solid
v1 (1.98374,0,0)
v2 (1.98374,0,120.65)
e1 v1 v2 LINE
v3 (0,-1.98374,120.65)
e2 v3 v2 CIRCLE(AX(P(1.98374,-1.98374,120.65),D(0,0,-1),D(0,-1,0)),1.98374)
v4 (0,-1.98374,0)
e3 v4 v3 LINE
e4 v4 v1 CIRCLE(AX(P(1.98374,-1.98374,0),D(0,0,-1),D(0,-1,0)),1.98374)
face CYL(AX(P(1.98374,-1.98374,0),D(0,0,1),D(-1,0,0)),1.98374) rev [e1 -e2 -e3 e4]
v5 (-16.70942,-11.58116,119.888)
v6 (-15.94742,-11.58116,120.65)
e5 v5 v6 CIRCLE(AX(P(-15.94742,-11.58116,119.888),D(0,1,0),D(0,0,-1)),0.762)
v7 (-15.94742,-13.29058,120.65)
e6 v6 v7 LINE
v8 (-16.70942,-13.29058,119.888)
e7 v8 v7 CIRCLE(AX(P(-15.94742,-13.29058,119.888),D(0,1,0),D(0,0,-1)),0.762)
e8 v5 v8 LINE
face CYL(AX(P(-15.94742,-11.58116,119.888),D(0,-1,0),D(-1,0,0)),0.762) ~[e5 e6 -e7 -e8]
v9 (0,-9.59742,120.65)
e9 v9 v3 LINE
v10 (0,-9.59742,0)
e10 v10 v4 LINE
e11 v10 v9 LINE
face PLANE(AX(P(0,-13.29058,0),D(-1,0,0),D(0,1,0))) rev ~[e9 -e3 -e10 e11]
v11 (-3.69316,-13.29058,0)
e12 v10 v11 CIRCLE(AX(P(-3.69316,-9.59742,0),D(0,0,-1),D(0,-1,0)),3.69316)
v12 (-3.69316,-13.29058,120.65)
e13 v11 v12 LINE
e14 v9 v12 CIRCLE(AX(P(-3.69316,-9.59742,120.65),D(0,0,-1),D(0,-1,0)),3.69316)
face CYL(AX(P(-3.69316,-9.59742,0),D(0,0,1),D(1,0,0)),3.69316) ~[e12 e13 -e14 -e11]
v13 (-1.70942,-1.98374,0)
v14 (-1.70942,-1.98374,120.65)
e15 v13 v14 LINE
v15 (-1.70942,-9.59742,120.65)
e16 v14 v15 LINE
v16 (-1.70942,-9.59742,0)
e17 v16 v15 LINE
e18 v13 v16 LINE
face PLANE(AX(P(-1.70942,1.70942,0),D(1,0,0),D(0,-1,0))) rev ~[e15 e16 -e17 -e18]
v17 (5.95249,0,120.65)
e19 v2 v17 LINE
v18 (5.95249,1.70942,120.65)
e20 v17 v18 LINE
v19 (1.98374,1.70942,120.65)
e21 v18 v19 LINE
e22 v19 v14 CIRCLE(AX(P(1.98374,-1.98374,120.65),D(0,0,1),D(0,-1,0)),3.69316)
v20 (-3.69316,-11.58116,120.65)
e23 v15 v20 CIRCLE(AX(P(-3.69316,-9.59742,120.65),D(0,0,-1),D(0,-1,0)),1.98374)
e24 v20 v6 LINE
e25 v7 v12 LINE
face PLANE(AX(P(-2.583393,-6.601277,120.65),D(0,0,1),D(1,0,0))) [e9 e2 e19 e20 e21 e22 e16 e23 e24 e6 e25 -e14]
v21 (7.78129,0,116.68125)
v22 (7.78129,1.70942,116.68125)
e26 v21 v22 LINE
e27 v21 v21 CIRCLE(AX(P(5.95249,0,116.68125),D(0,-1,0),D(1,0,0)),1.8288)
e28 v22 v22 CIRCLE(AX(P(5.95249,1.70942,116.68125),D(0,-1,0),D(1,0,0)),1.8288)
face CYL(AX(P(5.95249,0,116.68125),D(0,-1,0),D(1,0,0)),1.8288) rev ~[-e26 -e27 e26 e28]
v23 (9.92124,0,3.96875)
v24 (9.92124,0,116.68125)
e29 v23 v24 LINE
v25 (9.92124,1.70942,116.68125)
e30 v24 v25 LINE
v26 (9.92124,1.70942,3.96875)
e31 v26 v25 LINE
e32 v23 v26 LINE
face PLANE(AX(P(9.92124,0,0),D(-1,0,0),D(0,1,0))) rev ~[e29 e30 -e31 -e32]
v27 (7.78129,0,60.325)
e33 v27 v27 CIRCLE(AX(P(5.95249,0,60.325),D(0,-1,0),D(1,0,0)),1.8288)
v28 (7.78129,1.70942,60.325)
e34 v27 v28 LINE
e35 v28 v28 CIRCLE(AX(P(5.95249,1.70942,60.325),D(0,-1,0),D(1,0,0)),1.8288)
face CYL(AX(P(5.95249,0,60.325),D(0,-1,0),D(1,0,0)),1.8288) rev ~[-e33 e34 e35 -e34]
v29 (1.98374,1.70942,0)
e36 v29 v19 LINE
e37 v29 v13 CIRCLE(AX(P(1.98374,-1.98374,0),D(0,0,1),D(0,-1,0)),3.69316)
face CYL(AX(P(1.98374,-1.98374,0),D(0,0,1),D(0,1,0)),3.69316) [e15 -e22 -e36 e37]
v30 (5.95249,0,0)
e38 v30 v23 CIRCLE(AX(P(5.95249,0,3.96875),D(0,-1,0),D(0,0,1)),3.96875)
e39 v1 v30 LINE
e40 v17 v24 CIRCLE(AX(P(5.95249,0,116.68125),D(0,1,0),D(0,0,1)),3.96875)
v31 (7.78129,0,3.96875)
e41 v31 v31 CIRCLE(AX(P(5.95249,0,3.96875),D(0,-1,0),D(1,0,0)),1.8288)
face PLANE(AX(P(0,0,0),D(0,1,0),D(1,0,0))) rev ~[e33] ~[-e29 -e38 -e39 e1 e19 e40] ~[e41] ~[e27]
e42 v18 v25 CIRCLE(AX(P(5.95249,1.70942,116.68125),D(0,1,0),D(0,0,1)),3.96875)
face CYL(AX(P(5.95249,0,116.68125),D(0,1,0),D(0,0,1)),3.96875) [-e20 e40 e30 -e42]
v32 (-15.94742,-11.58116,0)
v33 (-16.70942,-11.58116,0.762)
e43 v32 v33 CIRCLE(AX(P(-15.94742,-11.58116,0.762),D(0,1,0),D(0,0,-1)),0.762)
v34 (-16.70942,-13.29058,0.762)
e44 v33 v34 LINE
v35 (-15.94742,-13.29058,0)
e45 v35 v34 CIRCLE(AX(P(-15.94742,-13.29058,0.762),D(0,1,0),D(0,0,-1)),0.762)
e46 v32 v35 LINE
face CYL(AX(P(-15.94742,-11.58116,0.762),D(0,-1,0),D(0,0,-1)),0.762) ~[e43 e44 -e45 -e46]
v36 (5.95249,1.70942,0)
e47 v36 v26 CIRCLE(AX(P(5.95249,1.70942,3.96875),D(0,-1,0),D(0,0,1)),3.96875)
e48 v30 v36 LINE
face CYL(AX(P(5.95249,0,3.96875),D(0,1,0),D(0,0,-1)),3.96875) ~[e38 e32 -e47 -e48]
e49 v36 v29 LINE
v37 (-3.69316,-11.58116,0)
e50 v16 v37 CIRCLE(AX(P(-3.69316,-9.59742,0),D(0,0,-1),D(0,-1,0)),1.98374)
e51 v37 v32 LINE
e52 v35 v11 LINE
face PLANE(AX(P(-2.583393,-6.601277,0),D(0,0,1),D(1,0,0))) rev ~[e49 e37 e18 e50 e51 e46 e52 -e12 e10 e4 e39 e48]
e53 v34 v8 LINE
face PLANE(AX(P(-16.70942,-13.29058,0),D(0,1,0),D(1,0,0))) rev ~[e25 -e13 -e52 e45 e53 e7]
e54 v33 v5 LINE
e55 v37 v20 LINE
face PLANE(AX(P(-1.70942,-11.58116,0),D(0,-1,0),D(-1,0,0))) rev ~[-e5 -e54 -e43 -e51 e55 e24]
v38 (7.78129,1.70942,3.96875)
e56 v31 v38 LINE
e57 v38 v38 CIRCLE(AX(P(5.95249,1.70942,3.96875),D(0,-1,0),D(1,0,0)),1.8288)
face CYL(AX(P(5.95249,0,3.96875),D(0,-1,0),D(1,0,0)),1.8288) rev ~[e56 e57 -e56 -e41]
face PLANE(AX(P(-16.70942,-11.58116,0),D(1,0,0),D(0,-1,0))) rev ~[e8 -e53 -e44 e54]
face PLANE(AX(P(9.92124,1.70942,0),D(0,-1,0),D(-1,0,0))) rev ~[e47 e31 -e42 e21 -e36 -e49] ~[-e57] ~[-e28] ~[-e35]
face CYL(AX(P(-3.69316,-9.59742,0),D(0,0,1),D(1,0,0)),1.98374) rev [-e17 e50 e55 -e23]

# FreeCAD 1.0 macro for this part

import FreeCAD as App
import Part
import Sketcher
from FreeCAD import Vector
Q = App.Units.Quantity


def edges_at(feature, points):
    """Names of the edges that pass closest to the given points."""
    edges = feature.Shape.Edges
    near = lambda p: min(range(len(edges)), key=lambda i: edges[i].distToShape(Part.Vertex(*p))[0])
    return sorted({f"Edge{near(p) + 1}" for p in points})


def add_polygon(sketch, points):
    """Adds a closed chain of lines whose ends are joined by coincident constraints."""
    first, n = sketch.GeometryCount, len(points)
    for a, b in zip(points, points[1:] + points[:1]):
        sketch.addGeometry(Part.LineSegment(App.Vector(*a, 0), App.Vector(*b, 0)), False)
    for i in range(n):
        sketch.addConstraint(Sketcher.Constraint("Coincident", first + i, 2, first + (i + 1) % n, 1))

doc = App.newDocument("Part")
body = doc.addObject("PartDesign::Body", "Body")

sketch1 = body.newObject("Sketcher::SketchObject", "Sketch")
sketch1.AttachmentSupport = (doc.getObject("XY_Plane"), [""])
sketch1.MapMode = "FlatFace"
add_polygon(sketch1, [(0, -13.29058), (0, 0), (9.92124, 0), (9.92124, 1.70942), (-1.70942, 1.70942), (-1.70942, -11.58116), (-16.70942, -11.58116), (-16.70942, -13.29058)])
sketch1.addConstraint([
    Sketcher.Constraint("Vertical", 0),
    Sketcher.Constraint("Horizontal", 1),
    Sketcher.Constraint("Vertical", 2),
    Sketcher.Constraint("Horizontal", 3),
    Sketcher.Constraint("Vertical", 4),
    Sketcher.Constraint("Horizontal", 5),
    Sketcher.Constraint("Vertical", 6),
    Sketcher.Constraint("Horizontal", 7),
    Sketcher.Constraint("Coincident", 0, 2, -1, 1),
    Sketcher.Constraint("Equal", 0, 4),
    Sketcher.Constraint("DistanceX", 1, 1, 1, 2, Q("0.3906 in")),
    Sketcher.Constraint("DistanceX", 3, 2, 3, 1, Q("0.4579 in")),
    Sketcher.Constraint("DistanceY", 2, 1, 2, 2, Q("0.0673 in")),
    Sketcher.Constraint("DistanceX", 5, 2, 5, 1, 15.0),
    Sketcher.Constraint("DistanceY", 0, 1, 0, 2, 13.29058),
])
pad1 = body.newObject("PartDesign::Pad", "Pad")
pad1.Profile = sketch1
pad1.Length = Q("4.75 in")
doc.recompute()

fillet = body.newObject("PartDesign::Fillet", "Fillet")
fillet.Base = (pad1, edges_at(pad1, [(0, 0, 60.325), (-1.709, -11.581, 60.325)]))
fillet.Radius = Q("0.0781 in")
doc.recompute()

fillet2 = body.newObject("PartDesign::Fillet", "Fillet001")
fillet2.Base = (fillet, edges_at(fillet, [(0, -13.291, 60.325), (-1.709, 1.709, 60.325)]))
fillet2.Radius = Q("0.1454 in")
doc.recompute()

fillet3 = body.newObject("PartDesign::Fillet", "Fillet002")
fillet3.Base = (fillet2, edges_at(fillet2, [(9.921, 0.855, 120.65), (9.921, 0.855, 0)]))
fillet3.Radius = Q("0.15625 in")
doc.recompute()

fillet4 = body.newObject("PartDesign::Fillet", "Fillet003")
fillet4.Base = (fillet3, edges_at(fillet3, [(-16.709, -12.436, 0), (-16.709, -12.436, 120.65)]))
fillet4.Radius = Q("0.03 in")

sketch2 = body.newObject("Sketcher::SketchObject", "Sketch001")
sketch2.AttachmentSupport = (doc.getObject("XZ_Plane"), [""])
sketch2.MapMode = "FlatFace"
sketch2.addGeometry([
    Part.Circle(Vector(5.95249, 116.68125, 0), Vector(0, 0, 1), 1.8288),
    Part.Circle(Vector(5.95249, 3.96875, 0), Vector(0, 0, 1), 1.8288),
    Part.Circle(Vector(5.95249, 60.325, 0), Vector(0, 0, 1), 1.8288),
], False)
sketch2.addConstraint([
    Sketcher.Constraint("Equal", 0, 1),
    Sketcher.Constraint("Equal", 1, 2),
    Sketcher.Constraint("Vertical", 0, 3, 1, 3),
    Sketcher.Constraint("Vertical", 1, 3, 2, 3),
    Sketcher.Constraint("Diameter", 0, Q("0.144 in")),
    Sketcher.Constraint("DistanceY", -1, 1, 0, 3, Q("4.59375 in")),
    Sketcher.Constraint("DistanceY", -1, 1, 1, 3, Q("0.15625 in")),
    Sketcher.Constraint("DistanceY", -1, 1, 2, 3, Q("2.375 in")),
    Sketcher.Constraint("DistanceX", -1, 1, 0, 3, 5.95249),
])
pocket1 = body.newObject("PartDesign::Pocket", "Pocket")
pocket1.Profile = sketch2
pocket1.Type = "ThroughAll"

doc.recompute()
